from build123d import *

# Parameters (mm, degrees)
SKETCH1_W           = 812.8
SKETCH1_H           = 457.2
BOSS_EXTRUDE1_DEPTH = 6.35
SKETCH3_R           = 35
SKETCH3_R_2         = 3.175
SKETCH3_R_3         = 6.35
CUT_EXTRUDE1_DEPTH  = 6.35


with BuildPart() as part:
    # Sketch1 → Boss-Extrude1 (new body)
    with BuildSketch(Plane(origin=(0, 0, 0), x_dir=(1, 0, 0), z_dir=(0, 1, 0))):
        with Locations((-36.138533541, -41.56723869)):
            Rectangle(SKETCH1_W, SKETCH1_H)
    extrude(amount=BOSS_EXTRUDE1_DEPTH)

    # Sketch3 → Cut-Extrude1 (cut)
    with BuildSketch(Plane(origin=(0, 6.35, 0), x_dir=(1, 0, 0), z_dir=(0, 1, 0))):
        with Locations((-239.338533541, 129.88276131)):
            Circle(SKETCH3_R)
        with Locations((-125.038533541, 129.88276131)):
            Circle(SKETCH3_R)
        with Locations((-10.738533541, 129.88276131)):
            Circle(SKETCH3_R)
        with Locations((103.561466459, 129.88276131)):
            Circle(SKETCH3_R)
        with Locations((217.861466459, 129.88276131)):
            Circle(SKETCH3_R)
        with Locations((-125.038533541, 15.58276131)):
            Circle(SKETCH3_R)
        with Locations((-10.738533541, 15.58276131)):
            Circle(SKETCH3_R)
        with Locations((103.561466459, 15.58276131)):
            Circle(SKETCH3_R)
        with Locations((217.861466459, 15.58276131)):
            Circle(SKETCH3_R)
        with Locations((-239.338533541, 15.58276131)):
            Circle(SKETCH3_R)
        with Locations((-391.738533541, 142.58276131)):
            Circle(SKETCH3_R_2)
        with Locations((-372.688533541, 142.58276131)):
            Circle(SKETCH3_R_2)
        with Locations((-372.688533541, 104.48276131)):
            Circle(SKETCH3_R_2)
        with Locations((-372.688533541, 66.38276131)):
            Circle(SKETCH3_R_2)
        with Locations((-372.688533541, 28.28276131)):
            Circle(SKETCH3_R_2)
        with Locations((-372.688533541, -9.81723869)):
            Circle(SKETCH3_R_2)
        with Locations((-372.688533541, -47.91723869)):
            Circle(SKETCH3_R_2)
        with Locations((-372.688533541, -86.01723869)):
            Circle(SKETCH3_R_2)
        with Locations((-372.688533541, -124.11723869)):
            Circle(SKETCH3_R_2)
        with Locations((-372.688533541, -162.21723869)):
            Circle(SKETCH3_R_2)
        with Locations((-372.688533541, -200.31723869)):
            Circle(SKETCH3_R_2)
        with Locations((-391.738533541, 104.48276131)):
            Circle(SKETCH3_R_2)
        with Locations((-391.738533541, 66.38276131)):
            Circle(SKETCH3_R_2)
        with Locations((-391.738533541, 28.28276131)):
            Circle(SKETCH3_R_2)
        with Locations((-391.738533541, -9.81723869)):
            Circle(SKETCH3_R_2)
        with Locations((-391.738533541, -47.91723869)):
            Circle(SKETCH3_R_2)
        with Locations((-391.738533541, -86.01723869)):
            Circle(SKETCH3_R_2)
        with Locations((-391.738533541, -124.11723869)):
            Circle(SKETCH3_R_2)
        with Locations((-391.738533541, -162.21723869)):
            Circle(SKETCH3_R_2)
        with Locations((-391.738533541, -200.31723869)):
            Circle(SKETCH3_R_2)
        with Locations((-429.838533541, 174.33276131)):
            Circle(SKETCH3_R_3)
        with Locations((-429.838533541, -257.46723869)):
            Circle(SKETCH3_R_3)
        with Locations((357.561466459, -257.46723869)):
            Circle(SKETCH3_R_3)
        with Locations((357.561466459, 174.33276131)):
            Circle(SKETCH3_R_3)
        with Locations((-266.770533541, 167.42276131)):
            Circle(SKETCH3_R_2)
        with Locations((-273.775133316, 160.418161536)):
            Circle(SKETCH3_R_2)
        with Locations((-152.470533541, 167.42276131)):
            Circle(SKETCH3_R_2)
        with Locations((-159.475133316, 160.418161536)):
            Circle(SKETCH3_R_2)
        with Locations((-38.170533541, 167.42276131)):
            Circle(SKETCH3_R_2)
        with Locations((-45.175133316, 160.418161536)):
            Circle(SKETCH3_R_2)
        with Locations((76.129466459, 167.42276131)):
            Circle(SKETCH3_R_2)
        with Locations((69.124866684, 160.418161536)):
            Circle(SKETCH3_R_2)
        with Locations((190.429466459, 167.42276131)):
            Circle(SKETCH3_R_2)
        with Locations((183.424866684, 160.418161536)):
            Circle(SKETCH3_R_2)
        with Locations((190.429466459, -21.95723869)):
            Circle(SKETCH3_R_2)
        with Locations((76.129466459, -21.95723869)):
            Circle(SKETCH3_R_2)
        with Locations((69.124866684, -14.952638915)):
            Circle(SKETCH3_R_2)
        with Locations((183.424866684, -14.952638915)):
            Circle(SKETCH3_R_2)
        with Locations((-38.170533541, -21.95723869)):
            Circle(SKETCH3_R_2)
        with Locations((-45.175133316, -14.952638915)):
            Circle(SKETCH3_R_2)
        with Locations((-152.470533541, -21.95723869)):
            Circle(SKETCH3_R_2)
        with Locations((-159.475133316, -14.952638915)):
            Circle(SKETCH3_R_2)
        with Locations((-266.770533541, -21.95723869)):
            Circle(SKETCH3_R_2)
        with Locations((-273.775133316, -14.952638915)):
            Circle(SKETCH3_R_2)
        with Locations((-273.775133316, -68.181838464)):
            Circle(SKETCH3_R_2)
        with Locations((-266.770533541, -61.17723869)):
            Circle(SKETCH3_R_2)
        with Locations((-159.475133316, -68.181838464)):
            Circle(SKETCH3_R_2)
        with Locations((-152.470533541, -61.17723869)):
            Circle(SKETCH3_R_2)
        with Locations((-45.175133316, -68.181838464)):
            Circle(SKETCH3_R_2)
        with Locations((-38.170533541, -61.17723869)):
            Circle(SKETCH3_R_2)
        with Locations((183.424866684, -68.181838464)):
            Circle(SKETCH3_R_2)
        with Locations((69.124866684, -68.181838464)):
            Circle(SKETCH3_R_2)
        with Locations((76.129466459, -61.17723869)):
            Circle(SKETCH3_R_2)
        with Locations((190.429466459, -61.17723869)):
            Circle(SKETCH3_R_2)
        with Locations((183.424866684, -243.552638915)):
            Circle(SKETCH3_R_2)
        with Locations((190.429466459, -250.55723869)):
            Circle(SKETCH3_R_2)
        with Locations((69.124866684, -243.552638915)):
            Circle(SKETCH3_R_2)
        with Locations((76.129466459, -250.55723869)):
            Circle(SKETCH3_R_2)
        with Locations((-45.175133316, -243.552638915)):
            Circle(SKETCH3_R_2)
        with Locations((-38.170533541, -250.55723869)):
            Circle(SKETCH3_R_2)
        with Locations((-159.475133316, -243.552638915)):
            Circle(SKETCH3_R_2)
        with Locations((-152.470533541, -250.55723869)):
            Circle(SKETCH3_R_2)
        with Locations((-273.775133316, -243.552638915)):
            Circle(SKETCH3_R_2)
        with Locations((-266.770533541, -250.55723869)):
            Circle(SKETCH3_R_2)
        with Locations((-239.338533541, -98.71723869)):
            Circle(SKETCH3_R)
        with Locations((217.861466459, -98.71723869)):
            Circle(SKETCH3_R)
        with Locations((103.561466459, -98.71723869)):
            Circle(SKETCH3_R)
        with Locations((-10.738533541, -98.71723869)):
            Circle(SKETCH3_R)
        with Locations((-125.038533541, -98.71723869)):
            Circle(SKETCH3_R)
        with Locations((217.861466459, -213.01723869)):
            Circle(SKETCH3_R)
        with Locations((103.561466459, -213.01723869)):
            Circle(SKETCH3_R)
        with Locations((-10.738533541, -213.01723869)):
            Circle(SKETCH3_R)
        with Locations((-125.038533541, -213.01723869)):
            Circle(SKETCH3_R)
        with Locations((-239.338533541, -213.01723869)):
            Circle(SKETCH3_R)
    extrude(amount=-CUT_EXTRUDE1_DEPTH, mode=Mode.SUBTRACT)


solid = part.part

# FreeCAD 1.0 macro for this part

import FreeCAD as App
import Part
import Sketcher
from FreeCAD import Vector
Q = App.Units.Quantity

doc = App.newDocument("Part")
params = doc.addObject("Spreadsheet::Sheet", "Params")
for row, (alias, value) in enumerate([
    ("sketch1_width", "32 in"),
    ("sketch1_height", "18 in"),
    ("pad1_length", "0.25 in"),
    ("sketch2_diameter", "0.5 in"),
    ("sketch2_diameter2", "0.25 in"),
    ("pocket1_length", "0.25 in"),
], start=1):
    params.set(f"A{row}", alias)
    params.set(f"B{row}", "=" + value)
    params.setAlias(f"B{row}", alias)

body = doc.addObject("PartDesign::Body", "Body")

# Sketch on XZ plane
sketch1 = body.newObject("Sketcher::SketchObject", "Sketch")
sketch1.AttachmentSupport = (doc.getObject("XZ_Plane"), [""])
sketch1.MapMode = "FlatFace"
sketch1.addGeometry([
    Part.LineSegment(Vector(-443, -187, 0), Vector(-443, 270, 0)),
    Part.LineSegment(Vector(-443, 270, 0), Vector(370, 270, 0)),
    Part.LineSegment(Vector(370, 270, 0), Vector(370, -187, 0)),
    Part.LineSegment(Vector(370, -187, 0), Vector(-443, -187, 0)),
], False)
sketch1.addConstraint([
    Sketcher.Constraint("Coincident", 0, 2, 1, 1),
    Sketcher.Constraint("Coincident", 1, 2, 2, 1),
    Sketcher.Constraint("Coincident", 2, 2, 3, 1),
    Sketcher.Constraint("Coincident", 3, 2, 0, 1),
    Sketcher.Constraint("Vertical", 0),
    Sketcher.Constraint("Horizontal", 1),
    Sketcher.Constraint("Vertical", 2),
    Sketcher.Constraint("Horizontal", 3),
    Sketcher.Constraint("DistanceX", 1, 1, 1, 2, Q("32 in")),
    Sketcher.Constraint("DistanceY", 0, 1, 0, 2, Q("18 in")),
    Sketcher.Constraint("DistanceY", -1, 1, 0, 2, 270.167239),
    Sketcher.Constraint("DistanceX", 0, 2, -1, 1, 442.538534),
])
sketch1.setExpression("Constraints[8]", "Params.sketch1_width")
sketch1.setExpression("Constraints[9]", "Params.sketch1_height")
pad1 = body.newObject("PartDesign::Pad", "Pad")
pad1.Profile = sketch1
pad1.setExpression("Length", "Params.pad1_length")
pad1.Reversed = True

# Sketch on XZ plane
sketch2 = body.newObject("Sketcher::SketchObject", "Sketch001")
sketch2.AttachmentSupport = (doc.getObject("XZ_Plane"), [""])
sketch2.MapMode = "FlatFace"
sketch2.AttachmentOffset = App.Placement(Vector(0, 0, -0.25 * 25.4), App.Rotation())
sketch2.addGeometry([
    Part.Circle(Vector(-239.3, -129.9, 0), Vector(0, 0, 1), 35),  # 0
    Part.Circle(Vector(-125, -129.9, 0), Vector(0, 0, 1), 35),  # 1
    Part.Circle(Vector(-10.7, -129.9, 0), Vector(0, 0, 1), 35),  # 2
    Part.Circle(Vector(103.6, -129.9, 0), Vector(0, 0, 1), 35),  # 3
    Part.Circle(Vector(217.9, -129.9, 0), Vector(0, 0, 1), 35),  # 4
    Part.Circle(Vector(-125, -15.6, 0), Vector(0, 0, 1), 35),  # 5
    Part.Circle(Vector(-10.7, -15.6, 0), Vector(0, 0, 1), 35),  # 6
    Part.Circle(Vector(103.6, -15.6, 0), Vector(0, 0, 1), 35),  # 7
    Part.Circle(Vector(217.9, -15.6, 0), Vector(0, 0, 1), 35),  # 8
    Part.Circle(Vector(-239.3, -15.6, 0), Vector(0, 0, 1), 35),  # 9
    Part.Circle(Vector(-391.7, -142.6, 0), Vector(0, 0, 1), 3.2),  # 10
    Part.Circle(Vector(-372.7, -142.6, 0), Vector(0, 0, 1), 3.2),  # 11
    Part.Circle(Vector(-372.7, -104.5, 0), Vector(0, 0, 1), 3.2),  # 12
    Part.Circle(Vector(-372.7, -66.4, 0), Vector(0, 0, 1), 3.2),  # 13
    Part.Circle(Vector(-372.7, -28.3, 0), Vector(0, 0, 1), 3.2),  # 14
    Part.Circle(Vector(-372.7, 9.8, 0), Vector(0, 0, 1), 3.2),  # 15
    Part.Circle(Vector(-372.7, 47.9, 0), Vector(0, 0, 1), 3.2),  # 16
    Part.Circle(Vector(-372.7, 86, 0), Vector(0, 0, 1), 3.2),  # 17
    Part.Circle(Vector(-372.7, 124.1, 0), Vector(0, 0, 1), 3.2),  # 18
    Part.Circle(Vector(-372.7, 162.2, 0), Vector(0, 0, 1), 3.2),  # 19
    Part.Circle(Vector(-372.7, 200.3, 0), Vector(0, 0, 1), 3.2),  # 20
    Part.Circle(Vector(-391.7, -104.5, 0), Vector(0, 0, 1), 3.2),  # 21
    Part.Circle(Vector(-391.7, -66.4, 0), Vector(0, 0, 1), 3.2),  # 22
    Part.Circle(Vector(-391.7, -28.3, 0), Vector(0, 0, 1), 3.2),  # 23
    Part.Circle(Vector(-391.7, 9.8, 0), Vector(0, 0, 1), 3.2),  # 24
    Part.Circle(Vector(-391.7, 47.9, 0), Vector(0, 0, 1), 3.2),  # 25
    Part.Circle(Vector(-391.7, 86, 0), Vector(0, 0, 1), 3.2),  # 26
    Part.Circle(Vector(-391.7, 124.1, 0), Vector(0, 0, 1), 3.2),  # 27
    Part.Circle(Vector(-391.7, 162.2, 0), Vector(0, 0, 1), 3.2),  # 28
    Part.Circle(Vector(-391.7, 200.3, 0), Vector(0, 0, 1), 3.2),  # 29
    Part.Circle(Vector(-429.8, -174.3, 0), Vector(0, 0, 1), 6.3),  # 30
    Part.Circle(Vector(-429.8, 257.5, 0), Vector(0, 0, 1), 6.3),  # 31
    Part.Circle(Vector(357.6, 257.5, 0), Vector(0, 0, 1), 6.3),  # 32
    Part.Circle(Vector(357.6, -174.3, 0), Vector(0, 0, 1), 6.3),  # 33
    Part.Circle(Vector(-266.8, -167.4, 0), Vector(0, 0, 1), 3.2),  # 34
    Part.Circle(Vector(-273.8, -160.4, 0), Vector(0, 0, 1), 3.2),  # 35
    Part.Circle(Vector(-152.5, -167.4, 0), Vector(0, 0, 1), 3.2),  # 36
    Part.Circle(Vector(-159.5, -160.4, 0), Vector(0, 0, 1), 3.2),  # 37
    Part.Circle(Vector(-38.2, -167.4, 0), Vector(0, 0, 1), 3.2),  # 38
    Part.Circle(Vector(-45.2, -160.4, 0), Vector(0, 0, 1), 3.2),  # 39
    Part.Circle(Vector(76.1, -167.4, 0), Vector(0, 0, 1), 3.2),  # 40
    Part.Circle(Vector(69.1, -160.4, 0), Vector(0, 0, 1), 3.2),  # 41
    Part.Circle(Vector(190.4, -167.4, 0), Vector(0, 0, 1), 3.2),  # 42
    Part.Circle(Vector(183.4, -160.4, 0), Vector(0, 0, 1), 3.2),  # 43
    Part.Circle(Vector(190.4, 22, 0), Vector(0, 0, 1), 3.2),  # 44
    Part.Circle(Vector(76.1, 22, 0), Vector(0, 0, 1), 3.2),  # 45
    Part.Circle(Vector(69.1, 15, 0), Vector(0, 0, 1), 3.2),  # 46
    Part.Circle(Vector(183.4, 15, 0), Vector(0, 0, 1), 3.2),  # 47
    Part.Circle(Vector(-38.2, 22, 0), Vector(0, 0, 1), 3.2),  # 48
    Part.Circle(Vector(-45.2, 15, 0), Vector(0, 0, 1), 3.2),  # 49
    Part.Circle(Vector(-152.5, 22, 0), Vector(0, 0, 1), 3.2),  # 50
    Part.Circle(Vector(-159.5, 15, 0), Vector(0, 0, 1), 3.2),  # 51
    Part.Circle(Vector(-266.8, 22, 0), Vector(0, 0, 1), 3.2),  # 52
    Part.Circle(Vector(-273.8, 15, 0), Vector(0, 0, 1), 3.2),  # 53
    Part.Circle(Vector(-273.8, 68.2, 0), Vector(0, 0, 1), 3.2),  # 54
    Part.Circle(Vector(-266.8, 61.2, 0), Vector(0, 0, 1), 3.2),  # 55
    Part.Circle(Vector(-159.5, 68.2, 0), Vector(0, 0, 1), 3.2),  # 56
    Part.Circle(Vector(-152.5, 61.2, 0), Vector(0, 0, 1), 3.2),  # 57
    Part.Circle(Vector(-45.2, 68.2, 0), Vector(0, 0, 1), 3.2),  # 58
    Part.Circle(Vector(-38.2, 61.2, 0), Vector(0, 0, 1), 3.2),  # 59
    Part.Circle(Vector(183.4, 68.2, 0), Vector(0, 0, 1), 3.2),  # 60
    Part.Circle(Vector(69.1, 68.2, 0), Vector(0, 0, 1), 3.2),  # 61
    Part.Circle(Vector(76.1, 61.2, 0), Vector(0, 0, 1), 3.2),  # 62
    Part.Circle(Vector(190.4, 61.2, 0), Vector(0, 0, 1), 3.2),  # 63
    Part.Circle(Vector(183.4, 243.6, 0), Vector(0, 0, 1), 3.2),  # 64
    Part.Circle(Vector(190.4, 250.6, 0), Vector(0, 0, 1), 3.2),  # 65
    Part.Circle(Vector(69.1, 243.6, 0), Vector(0, 0, 1), 3.2),  # 66
    Part.Circle(Vector(76.1, 250.6, 0), Vector(0, 0, 1), 3.2),  # 67
    Part.Circle(Vector(-45.2, 243.6, 0), Vector(0, 0, 1), 3.2),  # 68
    Part.Circle(Vector(-38.2, 250.6, 0), Vector(0, 0, 1), 3.2),  # 69
    Part.Circle(Vector(-159.5, 243.6, 0), Vector(0, 0, 1), 3.2),  # 70
    Part.Circle(Vector(-152.5, 250.6, 0), Vector(0, 0, 1), 3.2),  # 71
    Part.Circle(Vector(-273.8, 243.6, 0), Vector(0, 0, 1), 3.2),  # 72
    Part.Circle(Vector(-266.8, 250.6, 0), Vector(0, 0, 1), 3.2),  # 73
    Part.Circle(Vector(-239.3, 98.7, 0), Vector(0, 0, 1), 35),  # 74
    Part.Circle(Vector(217.9, 98.7, 0), Vector(0, 0, 1), 35),  # 75
    Part.Circle(Vector(103.6, 98.7, 0), Vector(0, 0, 1), 35),  # 76
    Part.Circle(Vector(-10.7, 98.7, 0), Vector(0, 0, 1), 35),  # 77
    Part.Circle(Vector(-125, 98.7, 0), Vector(0, 0, 1), 35),  # 78
    Part.Circle(Vector(217.9, 213, 0), Vector(0, 0, 1), 35),  # 79
    Part.Circle(Vector(103.6, 213, 0), Vector(0, 0, 1), 35),  # 80
    Part.Circle(Vector(-10.7, 213, 0), Vector(0, 0, 1), 35),  # 81
    Part.Circle(Vector(-125, 213, 0), Vector(0, 0, 1), 35),  # 82
    Part.Circle(Vector(-239.3, 213, 0), Vector(0, 0, 1), 35),  # 83
], False)
sketch2.addConstraint([
    Sketcher.Constraint("Equal", 0, 1),
    Sketcher.Constraint("Equal", 1, 2),
    Sketcher.Constraint("Equal", 2, 3),
    Sketcher.Constraint("Equal", 3, 4),
    Sketcher.Constraint("Equal", 4, 5),
    Sketcher.Constraint("Equal", 5, 6),
    Sketcher.Constraint("Equal", 6, 7),
    Sketcher.Constraint("Equal", 7, 8),
    Sketcher.Constraint("Equal", 8, 9),
    Sketcher.Constraint("Equal", 10, 11),
    Sketcher.Constraint("Equal", 11, 12),
    Sketcher.Constraint("Equal", 12, 13),
    Sketcher.Constraint("Equal", 13, 14),
    Sketcher.Constraint("Equal", 14, 15),
    Sketcher.Constraint("Equal", 15, 16),
    Sketcher.Constraint("Equal", 16, 17),
    Sketcher.Constraint("Equal", 17, 18),
    Sketcher.Constraint("Equal", 18, 19),
    Sketcher.Constraint("Equal", 19, 20),
    Sketcher.Constraint("Equal", 20, 21),
    Sketcher.Constraint("Equal", 21, 22),
    Sketcher.Constraint("Equal", 22, 23),
    Sketcher.Constraint("Equal", 23, 24),
    Sketcher.Constraint("Equal", 24, 25),
    Sketcher.Constraint("Equal", 25, 26),
    Sketcher.Constraint("Equal", 26, 27),
    Sketcher.Constraint("Equal", 27, 28),
    Sketcher.Constraint("Equal", 28, 29),
    Sketcher.Constraint("Equal", 30, 31),
    Sketcher.Constraint("Equal", 31, 32),
    Sketcher.Constraint("Equal", 32, 33),
    Sketcher.Constraint("Equal", 29, 34),
    Sketcher.Constraint("Equal", 34, 35),
    Sketcher.Constraint("Equal", 35, 36),
    Sketcher.Constraint("Equal", 36, 37),
    Sketcher.Constraint("Equal", 37, 38),
    Sketcher.Constraint("Equal", 38, 39),
    Sketcher.Constraint("Equal", 39, 40),
    Sketcher.Constraint("Equal", 40, 41),
    Sketcher.Constraint("Equal", 41, 42),
    Sketcher.Constraint("Equal", 42, 43),
    Sketcher.Constraint("Equal", 43, 44),
    Sketcher.Constraint("Equal", 44, 45),
    Sketcher.Constraint("Equal", 45, 46),
    Sketcher.Constraint("Equal", 46, 47),
    Sketcher.Constraint("Equal", 47, 48),
    Sketcher.Constraint("Equal", 48, 49),
    Sketcher.Constraint("Equal", 49, 50),
    Sketcher.Constraint("Equal", 50, 51),
    Sketcher.Constraint("Equal", 51, 52),
    Sketcher.Constraint("Equal", 52, 53),
    Sketcher.Constraint("Equal", 53, 54),
    Sketcher.Constraint("Equal", 54, 55),
    Sketcher.Constraint("Equal", 55, 56),
    Sketcher.Constraint("Equal", 56, 57),
    Sketcher.Constraint("Equal", 57, 58),
    Sketcher.Constraint("Equal", 58, 59),
    Sketcher.Constraint("Equal", 59, 60),
    Sketcher.Constraint("Equal", 60, 61),
    Sketcher.Constraint("Equal", 61, 62),
    Sketcher.Constraint("Equal", 62, 63),
    Sketcher.Constraint("Equal", 63, 64),
    Sketcher.Constraint("Equal", 64, 65),
    Sketcher.Constraint("Equal", 65, 66),
    Sketcher.Constraint("Equal", 66, 67),
    Sketcher.Constraint("Equal", 67, 68),
    Sketcher.Constraint("Equal", 68, 69),
    Sketcher.Constraint("Equal", 69, 70),
    Sketcher.Constraint("Equal", 70, 71),
    Sketcher.Constraint("Equal", 71, 72),
    Sketcher.Constraint("Equal", 72, 73),
    Sketcher.Constraint("Equal", 9, 74),
    Sketcher.Constraint("Equal", 74, 75),
    Sketcher.Constraint("Equal", 75, 76),
    Sketcher.Constraint("Equal", 76, 77),
    Sketcher.Constraint("Equal", 77, 78),
    Sketcher.Constraint("Equal", 78, 79),
    Sketcher.Constraint("Equal", 79, 80),
    Sketcher.Constraint("Equal", 80, 81),
    Sketcher.Constraint("Equal", 81, 82),
    Sketcher.Constraint("Equal", 82, 83),
    Sketcher.Constraint("Horizontal", 0, 3, 1, 3),
    Sketcher.Constraint("Horizontal", 1, 3, 2, 3),
    Sketcher.Constraint("Horizontal", 2, 3, 3, 3),
    Sketcher.Constraint("Horizontal", 3, 3, 4, 3),
    Sketcher.Constraint("Horizontal", 5, 3, 6, 3),
    Sketcher.Constraint("Horizontal", 6, 3, 7, 3),
    Sketcher.Constraint("Horizontal", 7, 3, 8, 3),
    Sketcher.Constraint("Horizontal", 8, 3, 9, 3),
    Sketcher.Constraint("Horizontal", 10, 3, 11, 3),
    Sketcher.Constraint("Horizontal", 12, 3, 21, 3),
    Sketcher.Constraint("Horizontal", 13, 3, 22, 3),
    Sketcher.Constraint("Horizontal", 14, 3, 23, 3),
    Sketcher.Constraint("Horizontal", 15, 3, 24, 3),
    Sketcher.Constraint("Horizontal", 16, 3, 25, 3),
    Sketcher.Constraint("Horizontal", 17, 3, 26, 3),
    Sketcher.Constraint("Horizontal", 18, 3, 27, 3),
    Sketcher.Constraint("Horizontal", 19, 3, 28, 3),
    Sketcher.Constraint("Horizontal", 20, 3, 29, 3),
    Sketcher.Constraint("Horizontal", 31, 3, 32, 3),
    Sketcher.Constraint("Horizontal", 30, 3, 33, 3),
    Sketcher.Constraint("Horizontal", 34, 3, 36, 3),
    Sketcher.Constraint("Horizontal", 35, 3, 37, 3),
    Sketcher.Constraint("Horizontal", 36, 3, 38, 3),
    Sketcher.Constraint("Horizontal", 37, 3, 39, 3),
    Sketcher.Constraint("Horizontal", 38, 3, 40, 3),
    Sketcher.Constraint("Horizontal", 39, 3, 41, 3),
    Sketcher.Constraint("Horizontal", 40, 3, 42, 3),
    Sketcher.Constraint("Horizontal", 41, 3, 43, 3),
    Sketcher.Constraint("Horizontal", 44, 3, 45, 3),
    Sketcher.Constraint("Horizontal", 46, 3, 47, 3),
    Sketcher.Constraint("Horizontal", 45, 3, 48, 3),
    Sketcher.Constraint("Horizontal", 47, 3, 49, 3),
    Sketcher.Constraint("Horizontal", 48, 3, 50, 3),
    Sketcher.Constraint("Horizontal", 49, 3, 51, 3),
    Sketcher.Constraint("Horizontal", 50, 3, 52, 3),
    Sketcher.Constraint("Horizontal", 51, 3, 53, 3),
    Sketcher.Constraint("Horizontal", 54, 3, 56, 3),
    Sketcher.Constraint("Horizontal", 55, 3, 57, 3),
    Sketcher.Constraint("Horizontal", 56, 3, 58, 3),
    Sketcher.Constraint("Horizontal", 57, 3, 59, 3),
    Sketcher.Constraint("Horizontal", 58, 3, 60, 3),
    Sketcher.Constraint("Horizontal", 60, 3, 61, 3),
    Sketcher.Constraint("Horizontal", 59, 3, 62, 3),
    Sketcher.Constraint("Horizontal", 62, 3, 63, 3),
    Sketcher.Constraint("Horizontal", 64, 3, 66, 3),
    Sketcher.Constraint("Horizontal", 65, 3, 67, 3),
    Sketcher.Constraint("Horizontal", 66, 3, 68, 3),
    Sketcher.Constraint("Horizontal", 67, 3, 69, 3),
    Sketcher.Constraint("Horizontal", 68, 3, 70, 3),
    Sketcher.Constraint("Horizontal", 69, 3, 71, 3),
    Sketcher.Constraint("Horizontal", 70, 3, 72, 3),
    Sketcher.Constraint("Horizontal", 71, 3, 73, 3),
    Sketcher.Constraint("Horizontal", 74, 3, 75, 3),
    Sketcher.Constraint("Horizontal", 75, 3, 76, 3),
    Sketcher.Constraint("Horizontal", 76, 3, 77, 3),
    Sketcher.Constraint("Horizontal", 77, 3, 78, 3),
    Sketcher.Constraint("Horizontal", 79, 3, 80, 3),
    Sketcher.Constraint("Horizontal", 80, 3, 81, 3),
    Sketcher.Constraint("Horizontal", 81, 3, 82, 3),
    Sketcher.Constraint("Horizontal", 82, 3, 83, 3),
    Sketcher.Constraint("Vertical", 1, 3, 5, 3),
    Sketcher.Constraint("Vertical", 2, 3, 6, 3),
    Sketcher.Constraint("Vertical", 3, 3, 7, 3),
    Sketcher.Constraint("Vertical", 4, 3, 8, 3),
    Sketcher.Constraint("Vertical", 0, 3, 9, 3),
    Sketcher.Constraint("Vertical", 11, 3, 12, 3),
    Sketcher.Constraint("Vertical", 12, 3, 13, 3),
    Sketcher.Constraint("Vertical", 13, 3, 14, 3),
    Sketcher.Constraint("Vertical", 14, 3, 15, 3),
    Sketcher.Constraint("Vertical", 15, 3, 16, 3),
    Sketcher.Constraint("Vertical", 16, 3, 17, 3),
    Sketcher.Constraint("Vertical", 17, 3, 18, 3),
    Sketcher.Constraint("Vertical", 18, 3, 19, 3),
    Sketcher.Constraint("Vertical", 19, 3, 20, 3),
    Sketcher.Constraint("Vertical", 10, 3, 21, 3),
    Sketcher.Constraint("Vertical", 21, 3, 22, 3),
    Sketcher.Constraint("Vertical", 22, 3, 23, 3),
    Sketcher.Constraint("Vertical", 23, 3, 24, 3),
    Sketcher.Constraint("Vertical", 24, 3, 25, 3),
    Sketcher.Constraint("Vertical", 25, 3, 26, 3),
    Sketcher.Constraint("Vertical", 26, 3, 27, 3),
    Sketcher.Constraint("Vertical", 27, 3, 28, 3),
    Sketcher.Constraint("Vertical", 28, 3, 29, 3),
    Sketcher.Constraint("Vertical", 30, 3, 31, 3),
    Sketcher.Constraint("Vertical", 32, 3, 33, 3),
    Sketcher.Constraint("Vertical", 42, 3, 44, 3),
    Sketcher.Constraint("Vertical", 40, 3, 45, 3),
    Sketcher.Constraint("Vertical", 41, 3, 46, 3),
    Sketcher.Constraint("Vertical", 43, 3, 47, 3),
    Sketcher.Constraint("Vertical", 38, 3, 48, 3),
    Sketcher.Constraint("Vertical", 39, 3, 49, 3),
    Sketcher.Constraint("Vertical", 36, 3, 50, 3),
    Sketcher.Constraint("Vertical", 37, 3, 51, 3),
    Sketcher.Constraint("Vertical", 34, 3, 52, 3),
    Sketcher.Constraint("Vertical", 35, 3, 53, 3),
    Sketcher.Constraint("Vertical", 53, 3, 54, 3),
    Sketcher.Constraint("Vertical", 52, 3, 55, 3),
    Sketcher.Constraint("Vertical", 51, 3, 56, 3),
    Sketcher.Constraint("Vertical", 50, 3, 57, 3),
    Sketcher.Constraint("Vertical", 49, 3, 58, 3),
    Sketcher.Constraint("Vertical", 48, 3, 59, 3),
    Sketcher.Constraint("Vertical", 47, 3, 60, 3),
    Sketcher.Constraint("Vertical", 46, 3, 61, 3),
    Sketcher.Constraint("Vertical", 45, 3, 62, 3),
    Sketcher.Constraint("Vertical", 44, 3, 63, 3),
    Sketcher.Constraint("Vertical", 60, 3, 64, 3),
    Sketcher.Constraint("Vertical", 63, 3, 65, 3),
    Sketcher.Constraint("Vertical", 61, 3, 66, 3),
    Sketcher.Constraint("Vertical", 62, 3, 67, 3),
    Sketcher.Constraint("Vertical", 58, 3, 68, 3),
    Sketcher.Constraint("Vertical", 59, 3, 69, 3),
    Sketcher.Constraint("Vertical", 56, 3, 70, 3),
    Sketcher.Constraint("Vertical", 57, 3, 71, 3),
    Sketcher.Constraint("Vertical", 54, 3, 72, 3),
    Sketcher.Constraint("Vertical", 55, 3, 73, 3),
    Sketcher.Constraint("Vertical", 9, 3, 74, 3),
    Sketcher.Constraint("Vertical", 8, 3, 75, 3),
    Sketcher.Constraint("Vertical", 7, 3, 76, 3),
    Sketcher.Constraint("Vertical", 6, 3, 77, 3),
    Sketcher.Constraint("Vertical", 5, 3, 78, 3),
    Sketcher.Constraint("Vertical", 75, 3, 79, 3),
    Sketcher.Constraint("Vertical", 76, 3, 80, 3),
    Sketcher.Constraint("Vertical", 77, 3, 81, 3),
    Sketcher.Constraint("Vertical", 78, 3, 82, 3),
    Sketcher.Constraint("Vertical", 74, 3, 83, 3),
    Sketcher.Constraint("Diameter", 30, Q("0.5 in")),
    Sketcher.Constraint("Diameter", 10, Q("0.25 in")),
    Sketcher.Constraint("Diameter", 0, 70.0),
    Sketcher.Constraint("DistanceY", 0, 3, -1, 1, 129.882761),
    Sketcher.Constraint("DistanceY", 5, 3, -1, 1, 15.582761),
    Sketcher.Constraint("DistanceY", 10, 3, -1, 1, 142.582761),
    Sketcher.Constraint("DistanceY", 12, 3, -1, 1, 104.482761),
    Sketcher.Constraint("DistanceY", 13, 3, -1, 1, 66.382761),
    Sketcher.Constraint("DistanceY", 14, 3, -1, 1, 28.282761),
    Sketcher.Constraint("DistanceY", -1, 1, 15, 3, 9.817239),
    Sketcher.Constraint("DistanceY", -1, 1, 16, 3, 47.917239),
    Sketcher.Constraint("DistanceY", -1, 1, 17, 3, 86.017239),
    Sketcher.Constraint("DistanceY", -1, 1, 18, 3, 124.117239),
    Sketcher.Constraint("DistanceY", -1, 1, 19, 3, 162.217239),
    Sketcher.Constraint("DistanceY", -1, 1, 20, 3, 200.317239),
    Sketcher.Constraint("DistanceY", 30, 3, -1, 1, 174.332761),
    Sketcher.Constraint("DistanceY", -1, 1, 31, 3, 257.467239),
    Sketcher.Constraint("DistanceY", 34, 3, -1, 1, 167.422761),
    Sketcher.Constraint("DistanceY", 35, 3, -1, 1, 160.418162),
    Sketcher.Constraint("DistanceY", -1, 1, 44, 3, 21.957239),
    Sketcher.Constraint("DistanceY", -1, 1, 46, 3, 14.952639),
    Sketcher.Constraint("DistanceY", -1, 1, 54, 3, 68.181838),
    Sketcher.Constraint("DistanceY", -1, 1, 55, 3, 61.177239),
    Sketcher.Constraint("DistanceY", -1, 1, 64, 3, 243.552639),
    Sketcher.Constraint("DistanceY", -1, 1, 65, 3, 250.557239),
    Sketcher.Constraint("DistanceY", -1, 1, 74, 3, 98.717239),
    Sketcher.Constraint("DistanceY", -1, 1, 79, 3, 213.017239),
    Sketcher.Constraint("DistanceX", 0, 3, -1, 1, 239.338534),
    Sketcher.Constraint("DistanceX", 1, 3, -1, 1, 125.038534),
    Sketcher.Constraint("DistanceX", 2, 3, -1, 1, 10.738534),
    Sketcher.Constraint("DistanceX", -1, 1, 3, 3, 103.561466),
    Sketcher.Constraint("DistanceX", -1, 1, 4, 3, 217.861466),
    Sketcher.Constraint("DistanceX", 10, 3, -1, 1, 391.738534),
    Sketcher.Constraint("DistanceX", 11, 3, -1, 1, 372.688534),
    Sketcher.Constraint("DistanceX", 30, 3, -1, 1, 429.838534),
    Sketcher.Constraint("DistanceX", -1, 1, 32, 3, 357.561466),
    Sketcher.Constraint("DistanceX", 34, 3, -1, 1, 266.770534),
    Sketcher.Constraint("DistanceX", 35, 3, -1, 1, 273.775133),
    Sketcher.Constraint("DistanceX", 36, 3, -1, 1, 152.470534),
    Sketcher.Constraint("DistanceX", 37, 3, -1, 1, 159.475133),
    Sketcher.Constraint("DistanceX", 38, 3, -1, 1, 38.170534),
    Sketcher.Constraint("DistanceX", 39, 3, -1, 1, 45.175133),
    Sketcher.Constraint("DistanceX", -1, 1, 40, 3, 76.129466),
    Sketcher.Constraint("DistanceX", -1, 1, 41, 3, 69.124867),
    Sketcher.Constraint("DistanceX", -1, 1, 42, 3, 190.429466),
    Sketcher.Constraint("DistanceX", -1, 1, 43, 3, 183.424867),
])
sketch2.setExpression("Constraints[206]", "Params.sketch2_diameter")
sketch2.setExpression("Constraints[207]", "Params.sketch2_diameter2")
pocket1 = body.newObject("PartDesign::Pocket", "Pocket")
pocket1.Profile = sketch2
pocket1.setExpression("Length", "Params.pocket1_length")
pocket1.Reversed = True

doc.recompute()
